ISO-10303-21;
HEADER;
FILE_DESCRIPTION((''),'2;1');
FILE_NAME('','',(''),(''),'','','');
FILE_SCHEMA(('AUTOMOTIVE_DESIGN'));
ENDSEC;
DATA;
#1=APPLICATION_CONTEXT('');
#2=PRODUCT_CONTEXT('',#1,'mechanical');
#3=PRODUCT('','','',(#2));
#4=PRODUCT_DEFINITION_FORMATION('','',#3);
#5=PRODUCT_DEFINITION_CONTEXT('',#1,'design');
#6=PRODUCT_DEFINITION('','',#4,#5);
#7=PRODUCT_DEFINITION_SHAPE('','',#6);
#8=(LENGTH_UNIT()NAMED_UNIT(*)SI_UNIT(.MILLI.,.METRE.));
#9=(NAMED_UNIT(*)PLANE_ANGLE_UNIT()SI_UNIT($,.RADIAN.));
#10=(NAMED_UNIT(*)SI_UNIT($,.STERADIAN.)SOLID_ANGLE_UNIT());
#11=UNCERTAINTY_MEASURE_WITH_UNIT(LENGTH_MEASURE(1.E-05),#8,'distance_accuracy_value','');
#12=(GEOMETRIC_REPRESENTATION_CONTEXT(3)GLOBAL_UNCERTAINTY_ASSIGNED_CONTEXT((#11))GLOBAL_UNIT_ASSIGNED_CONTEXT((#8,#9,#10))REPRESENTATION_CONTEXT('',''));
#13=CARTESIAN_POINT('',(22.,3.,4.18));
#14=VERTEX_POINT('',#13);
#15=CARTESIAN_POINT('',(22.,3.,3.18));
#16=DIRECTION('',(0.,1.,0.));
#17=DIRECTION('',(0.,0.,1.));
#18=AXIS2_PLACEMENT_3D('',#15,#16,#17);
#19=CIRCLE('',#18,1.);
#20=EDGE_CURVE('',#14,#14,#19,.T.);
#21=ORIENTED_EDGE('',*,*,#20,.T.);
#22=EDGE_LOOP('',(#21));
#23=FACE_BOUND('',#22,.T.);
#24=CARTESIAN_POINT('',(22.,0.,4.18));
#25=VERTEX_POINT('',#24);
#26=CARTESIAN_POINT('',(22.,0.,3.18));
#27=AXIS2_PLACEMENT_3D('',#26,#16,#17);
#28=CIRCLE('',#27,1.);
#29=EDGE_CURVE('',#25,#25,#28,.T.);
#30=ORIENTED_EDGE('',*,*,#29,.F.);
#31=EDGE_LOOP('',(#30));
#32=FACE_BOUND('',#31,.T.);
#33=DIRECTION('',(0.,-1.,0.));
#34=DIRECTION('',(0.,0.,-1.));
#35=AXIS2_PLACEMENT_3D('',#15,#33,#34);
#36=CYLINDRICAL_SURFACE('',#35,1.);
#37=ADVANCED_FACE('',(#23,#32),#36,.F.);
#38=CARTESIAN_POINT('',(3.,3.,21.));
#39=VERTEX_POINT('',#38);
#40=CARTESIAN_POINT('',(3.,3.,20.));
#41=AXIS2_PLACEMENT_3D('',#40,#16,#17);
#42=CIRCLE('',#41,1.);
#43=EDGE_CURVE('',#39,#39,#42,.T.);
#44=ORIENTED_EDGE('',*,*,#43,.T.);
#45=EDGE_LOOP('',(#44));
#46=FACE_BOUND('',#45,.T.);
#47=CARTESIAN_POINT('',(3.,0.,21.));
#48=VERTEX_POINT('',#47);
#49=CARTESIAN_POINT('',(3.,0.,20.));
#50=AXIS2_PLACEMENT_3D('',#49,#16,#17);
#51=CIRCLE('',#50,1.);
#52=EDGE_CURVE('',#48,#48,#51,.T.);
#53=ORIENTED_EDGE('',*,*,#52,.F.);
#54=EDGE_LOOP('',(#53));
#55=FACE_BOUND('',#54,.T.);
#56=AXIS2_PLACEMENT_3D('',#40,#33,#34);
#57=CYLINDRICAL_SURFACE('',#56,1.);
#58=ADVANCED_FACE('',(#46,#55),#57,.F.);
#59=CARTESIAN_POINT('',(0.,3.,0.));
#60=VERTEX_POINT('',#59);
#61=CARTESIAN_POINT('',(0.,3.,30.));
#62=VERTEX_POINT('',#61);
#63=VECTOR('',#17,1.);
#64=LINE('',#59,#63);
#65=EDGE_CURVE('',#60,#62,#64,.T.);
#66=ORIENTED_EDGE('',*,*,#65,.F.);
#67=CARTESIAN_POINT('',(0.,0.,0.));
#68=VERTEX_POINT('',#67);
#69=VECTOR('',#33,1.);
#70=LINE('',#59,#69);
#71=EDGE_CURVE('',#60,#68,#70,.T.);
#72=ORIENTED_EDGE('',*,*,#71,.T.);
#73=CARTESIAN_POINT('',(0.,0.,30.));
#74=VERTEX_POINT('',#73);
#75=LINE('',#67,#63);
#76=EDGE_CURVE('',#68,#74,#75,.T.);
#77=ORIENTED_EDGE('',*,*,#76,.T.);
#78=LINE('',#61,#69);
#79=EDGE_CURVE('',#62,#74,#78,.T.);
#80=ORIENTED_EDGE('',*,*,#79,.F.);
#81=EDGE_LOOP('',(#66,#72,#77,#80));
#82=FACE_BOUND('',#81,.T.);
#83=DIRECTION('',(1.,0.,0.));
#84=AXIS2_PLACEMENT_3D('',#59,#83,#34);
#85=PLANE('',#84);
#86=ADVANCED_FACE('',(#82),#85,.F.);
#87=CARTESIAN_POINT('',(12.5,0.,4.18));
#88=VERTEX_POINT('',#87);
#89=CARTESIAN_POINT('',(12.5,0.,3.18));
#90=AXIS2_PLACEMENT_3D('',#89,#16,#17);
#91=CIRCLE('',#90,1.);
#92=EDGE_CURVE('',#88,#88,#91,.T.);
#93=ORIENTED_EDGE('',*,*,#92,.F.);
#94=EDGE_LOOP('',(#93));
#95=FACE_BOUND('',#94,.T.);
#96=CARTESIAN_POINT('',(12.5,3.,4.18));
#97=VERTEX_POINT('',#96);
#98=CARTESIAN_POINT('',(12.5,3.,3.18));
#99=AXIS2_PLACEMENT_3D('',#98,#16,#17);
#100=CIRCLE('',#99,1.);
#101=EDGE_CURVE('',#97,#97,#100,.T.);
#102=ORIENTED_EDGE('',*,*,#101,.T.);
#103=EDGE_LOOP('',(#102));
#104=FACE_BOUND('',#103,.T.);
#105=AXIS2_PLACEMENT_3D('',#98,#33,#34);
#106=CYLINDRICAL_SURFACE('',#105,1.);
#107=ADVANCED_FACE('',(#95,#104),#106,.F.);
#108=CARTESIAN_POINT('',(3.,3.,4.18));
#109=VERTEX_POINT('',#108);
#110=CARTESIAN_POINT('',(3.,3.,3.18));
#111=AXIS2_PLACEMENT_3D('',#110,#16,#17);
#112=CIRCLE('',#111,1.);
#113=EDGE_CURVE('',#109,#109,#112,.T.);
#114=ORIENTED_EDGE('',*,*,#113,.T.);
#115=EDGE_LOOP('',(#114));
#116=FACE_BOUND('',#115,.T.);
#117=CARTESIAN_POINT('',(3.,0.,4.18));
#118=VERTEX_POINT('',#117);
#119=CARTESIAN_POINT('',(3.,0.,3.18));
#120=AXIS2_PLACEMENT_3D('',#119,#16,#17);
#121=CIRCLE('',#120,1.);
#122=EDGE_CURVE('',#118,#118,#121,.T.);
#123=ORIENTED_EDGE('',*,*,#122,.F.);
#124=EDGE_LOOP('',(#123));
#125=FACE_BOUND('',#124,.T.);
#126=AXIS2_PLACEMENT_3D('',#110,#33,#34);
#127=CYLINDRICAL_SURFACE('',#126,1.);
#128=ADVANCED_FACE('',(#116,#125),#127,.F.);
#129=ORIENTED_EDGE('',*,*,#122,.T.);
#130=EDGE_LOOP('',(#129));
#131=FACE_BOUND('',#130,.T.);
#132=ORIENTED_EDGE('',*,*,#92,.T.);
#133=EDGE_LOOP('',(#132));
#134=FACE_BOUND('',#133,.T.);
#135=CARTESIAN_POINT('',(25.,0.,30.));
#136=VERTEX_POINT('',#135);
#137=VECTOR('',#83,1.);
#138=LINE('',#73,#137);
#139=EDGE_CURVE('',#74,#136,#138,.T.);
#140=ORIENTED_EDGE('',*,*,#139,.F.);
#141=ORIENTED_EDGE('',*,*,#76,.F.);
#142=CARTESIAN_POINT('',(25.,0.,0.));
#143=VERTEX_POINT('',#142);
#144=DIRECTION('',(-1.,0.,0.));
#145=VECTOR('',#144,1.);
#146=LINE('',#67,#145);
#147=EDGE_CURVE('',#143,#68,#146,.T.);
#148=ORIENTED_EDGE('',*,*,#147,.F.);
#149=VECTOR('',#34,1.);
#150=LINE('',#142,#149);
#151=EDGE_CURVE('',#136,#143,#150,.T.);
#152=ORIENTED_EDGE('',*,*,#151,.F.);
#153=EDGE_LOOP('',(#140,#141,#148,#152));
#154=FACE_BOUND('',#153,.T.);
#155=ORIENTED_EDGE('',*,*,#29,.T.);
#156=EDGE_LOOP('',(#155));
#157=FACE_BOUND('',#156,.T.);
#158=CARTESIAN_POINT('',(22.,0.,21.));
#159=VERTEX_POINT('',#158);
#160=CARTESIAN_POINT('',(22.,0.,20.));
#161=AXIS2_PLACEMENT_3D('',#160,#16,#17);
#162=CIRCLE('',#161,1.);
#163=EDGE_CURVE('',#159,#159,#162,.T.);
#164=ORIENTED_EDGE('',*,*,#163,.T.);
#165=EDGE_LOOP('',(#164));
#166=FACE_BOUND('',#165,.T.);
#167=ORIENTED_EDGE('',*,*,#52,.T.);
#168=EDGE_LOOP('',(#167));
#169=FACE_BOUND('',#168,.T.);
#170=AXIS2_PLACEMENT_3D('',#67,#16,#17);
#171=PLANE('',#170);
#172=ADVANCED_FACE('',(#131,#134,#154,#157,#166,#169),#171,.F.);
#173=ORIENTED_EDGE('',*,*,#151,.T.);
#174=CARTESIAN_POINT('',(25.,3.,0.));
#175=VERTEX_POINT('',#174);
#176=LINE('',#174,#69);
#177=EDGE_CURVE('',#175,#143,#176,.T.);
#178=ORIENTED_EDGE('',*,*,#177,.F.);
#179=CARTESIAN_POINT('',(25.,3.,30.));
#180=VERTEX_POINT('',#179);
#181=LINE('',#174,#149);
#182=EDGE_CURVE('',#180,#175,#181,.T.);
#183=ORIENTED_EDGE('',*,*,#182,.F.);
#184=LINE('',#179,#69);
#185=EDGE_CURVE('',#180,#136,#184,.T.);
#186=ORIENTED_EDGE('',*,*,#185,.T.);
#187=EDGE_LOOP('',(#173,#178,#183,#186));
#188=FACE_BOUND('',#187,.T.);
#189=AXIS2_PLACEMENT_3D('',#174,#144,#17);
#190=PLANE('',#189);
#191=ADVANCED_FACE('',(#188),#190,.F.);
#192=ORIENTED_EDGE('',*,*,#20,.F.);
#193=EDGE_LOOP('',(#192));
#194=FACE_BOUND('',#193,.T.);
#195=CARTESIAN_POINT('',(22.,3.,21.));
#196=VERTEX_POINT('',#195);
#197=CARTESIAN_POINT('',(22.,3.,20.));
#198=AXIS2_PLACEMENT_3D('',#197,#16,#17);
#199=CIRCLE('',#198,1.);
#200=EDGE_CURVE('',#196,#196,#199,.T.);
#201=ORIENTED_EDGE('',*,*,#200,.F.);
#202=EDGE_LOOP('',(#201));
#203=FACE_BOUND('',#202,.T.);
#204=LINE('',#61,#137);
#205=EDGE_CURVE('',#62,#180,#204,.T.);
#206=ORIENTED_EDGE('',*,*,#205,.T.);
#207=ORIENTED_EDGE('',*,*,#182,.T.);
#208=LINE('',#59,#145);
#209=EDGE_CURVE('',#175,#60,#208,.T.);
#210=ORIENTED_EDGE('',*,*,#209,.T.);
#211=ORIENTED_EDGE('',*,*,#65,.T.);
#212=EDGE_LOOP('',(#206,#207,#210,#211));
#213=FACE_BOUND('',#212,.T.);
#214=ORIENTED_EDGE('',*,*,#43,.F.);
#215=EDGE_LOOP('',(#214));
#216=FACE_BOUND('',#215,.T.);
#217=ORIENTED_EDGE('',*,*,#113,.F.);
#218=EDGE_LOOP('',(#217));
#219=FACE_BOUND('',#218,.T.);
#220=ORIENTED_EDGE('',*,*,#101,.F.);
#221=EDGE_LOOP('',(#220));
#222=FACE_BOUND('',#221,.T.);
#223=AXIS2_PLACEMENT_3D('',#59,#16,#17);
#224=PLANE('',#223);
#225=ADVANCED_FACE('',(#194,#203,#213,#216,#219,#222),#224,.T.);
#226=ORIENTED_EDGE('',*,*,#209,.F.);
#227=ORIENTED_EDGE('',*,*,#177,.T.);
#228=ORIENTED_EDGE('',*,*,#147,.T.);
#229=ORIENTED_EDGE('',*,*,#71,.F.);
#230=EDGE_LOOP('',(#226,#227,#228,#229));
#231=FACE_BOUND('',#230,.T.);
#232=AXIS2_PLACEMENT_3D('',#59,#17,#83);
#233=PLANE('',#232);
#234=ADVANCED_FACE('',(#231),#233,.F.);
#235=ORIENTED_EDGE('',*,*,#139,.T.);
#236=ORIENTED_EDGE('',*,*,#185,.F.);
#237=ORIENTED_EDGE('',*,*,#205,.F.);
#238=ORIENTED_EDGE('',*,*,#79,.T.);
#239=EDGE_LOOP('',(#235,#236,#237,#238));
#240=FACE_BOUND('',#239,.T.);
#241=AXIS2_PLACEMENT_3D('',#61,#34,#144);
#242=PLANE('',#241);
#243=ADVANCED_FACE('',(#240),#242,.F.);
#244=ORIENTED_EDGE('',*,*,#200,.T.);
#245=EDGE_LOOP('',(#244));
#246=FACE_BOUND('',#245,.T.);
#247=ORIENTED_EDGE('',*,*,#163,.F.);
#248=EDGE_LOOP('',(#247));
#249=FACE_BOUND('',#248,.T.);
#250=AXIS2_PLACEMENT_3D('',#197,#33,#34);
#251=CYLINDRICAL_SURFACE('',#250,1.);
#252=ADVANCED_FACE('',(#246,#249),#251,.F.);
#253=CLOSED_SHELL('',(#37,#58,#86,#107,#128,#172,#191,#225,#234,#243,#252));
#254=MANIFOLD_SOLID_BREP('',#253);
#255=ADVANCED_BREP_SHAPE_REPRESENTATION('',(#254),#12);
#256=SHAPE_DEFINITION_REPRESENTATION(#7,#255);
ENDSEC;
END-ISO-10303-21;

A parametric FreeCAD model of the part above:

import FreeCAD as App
import Part
import Sketcher

V = App.Vector


def add_polygon(sketch, points):
    """Adds a closed chain of lines whose ends are joined by coincident constraints."""
    first, n = sketch.GeometryCount, len(points)
    for a, b in zip(points, points[1:] + points[:1]):
        sketch.addGeometry(Part.LineSegment(App.Vector(*a, 0), App.Vector(*b, 0)), False)
    for i in range(n):
        sketch.addConstraint(Sketcher.Constraint("Coincident", first + i, 2, first + (i + 1) % n, 1))

doc = App.newDocument("Part")
body = doc.addObject("PartDesign::Body", "Body")

sketch1 = body.newObject("Sketcher::SketchObject", "Sketch")
sketch1.AttachmentSupport = (doc.getObject("XZ_Plane"), [""])
sketch1.MapMode = "FlatFace"
add_polygon(sketch1, [(0, 0), (0, 30), (25, 30), (25, 0)])
sketch1.addGeometry(Part.Circle(V(3, 20, 0), V(0, 0, 1), 1), False)
sketch1.addGeometry(Part.Circle(V(22, 20, 0), V(0, 0, 1), 1), False)
sketch1.addGeometry(Part.Circle(V(3, 3.2, 0), V(0, 0, 1), 1), False)
sketch1.addGeometry(Part.Circle(V(12.5, 3.2, 0), V(0, 0, 1), 1), False)
sketch1.addGeometry(Part.Circle(V(22, 3.2, 0), V(0, 0, 1), 1), False)
sketch1.addConstraint(Sketcher.Constraint("Vertical", 0))
sketch1.addConstraint(Sketcher.Constraint("Horizontal", 1))
sketch1.addConstraint(Sketcher.Constraint("Vertical", 2))
sketch1.addConstraint(Sketcher.Constraint("Horizontal", 3))
sketch1.addConstraint(Sketcher.Constraint("Coincident", 3, 2, -1, 1))
sketch1.addConstraint(Sketcher.Constraint("Equal", 4, 5))
sketch1.addConstraint(Sketcher.Constraint("Equal", 5, 6))
sketch1.addConstraint(Sketcher.Constraint("Equal", 6, 7))
sketch1.addConstraint(Sketcher.Constraint("Equal", 7, 8))
sketch1.addConstraint(Sketcher.Constraint("Horizontal", 4, 3, 5, 3))
sketch1.addConstraint(Sketcher.Constraint("Horizontal", 6, 3, 7, 3))
sketch1.addConstraint(Sketcher.Constraint("Horizontal", 7, 3, 8, 3))
sketch1.addConstraint(Sketcher.Constraint("Vertical", 4, 3, 6, 3))
sketch1.addConstraint(Sketcher.Constraint("Vertical", 5, 3, 8, 3))
sketch1.addConstraint(Sketcher.Constraint("Diameter", 4, 2.0))
sketch1.addConstraint(Sketcher.Constraint("DistanceX", 1, 1, 1, 2, 25.0))
sketch1.addConstraint(Sketcher.Constraint("DistanceY", 0, 1, 0, 2, 30.0))
sketch1.addConstraint(Sketcher.Constraint("DistanceX", -1, 1, 4, 3, 3.0))
sketch1.addConstraint(Sketcher.Constraint("DistanceY", -1, 1, 4, 3, 20.0))
sketch1.addConstraint(Sketcher.Constraint("DistanceX", -1, 1, 5, 3, 22.0))
sketch1.addConstraint(Sketcher.Constraint("DistanceX", -1, 1, 7, 3, 12.5))
sketch1.addConstraint(Sketcher.Constraint("DistanceY", -1, 1, 6, 3, 3.18))
pad1 = body.newObject("PartDesign::Pad", "Pad")
pad1.Profile = sketch1
pad1.Length = 3
pad1.Reversed = True

doc.recompute()
